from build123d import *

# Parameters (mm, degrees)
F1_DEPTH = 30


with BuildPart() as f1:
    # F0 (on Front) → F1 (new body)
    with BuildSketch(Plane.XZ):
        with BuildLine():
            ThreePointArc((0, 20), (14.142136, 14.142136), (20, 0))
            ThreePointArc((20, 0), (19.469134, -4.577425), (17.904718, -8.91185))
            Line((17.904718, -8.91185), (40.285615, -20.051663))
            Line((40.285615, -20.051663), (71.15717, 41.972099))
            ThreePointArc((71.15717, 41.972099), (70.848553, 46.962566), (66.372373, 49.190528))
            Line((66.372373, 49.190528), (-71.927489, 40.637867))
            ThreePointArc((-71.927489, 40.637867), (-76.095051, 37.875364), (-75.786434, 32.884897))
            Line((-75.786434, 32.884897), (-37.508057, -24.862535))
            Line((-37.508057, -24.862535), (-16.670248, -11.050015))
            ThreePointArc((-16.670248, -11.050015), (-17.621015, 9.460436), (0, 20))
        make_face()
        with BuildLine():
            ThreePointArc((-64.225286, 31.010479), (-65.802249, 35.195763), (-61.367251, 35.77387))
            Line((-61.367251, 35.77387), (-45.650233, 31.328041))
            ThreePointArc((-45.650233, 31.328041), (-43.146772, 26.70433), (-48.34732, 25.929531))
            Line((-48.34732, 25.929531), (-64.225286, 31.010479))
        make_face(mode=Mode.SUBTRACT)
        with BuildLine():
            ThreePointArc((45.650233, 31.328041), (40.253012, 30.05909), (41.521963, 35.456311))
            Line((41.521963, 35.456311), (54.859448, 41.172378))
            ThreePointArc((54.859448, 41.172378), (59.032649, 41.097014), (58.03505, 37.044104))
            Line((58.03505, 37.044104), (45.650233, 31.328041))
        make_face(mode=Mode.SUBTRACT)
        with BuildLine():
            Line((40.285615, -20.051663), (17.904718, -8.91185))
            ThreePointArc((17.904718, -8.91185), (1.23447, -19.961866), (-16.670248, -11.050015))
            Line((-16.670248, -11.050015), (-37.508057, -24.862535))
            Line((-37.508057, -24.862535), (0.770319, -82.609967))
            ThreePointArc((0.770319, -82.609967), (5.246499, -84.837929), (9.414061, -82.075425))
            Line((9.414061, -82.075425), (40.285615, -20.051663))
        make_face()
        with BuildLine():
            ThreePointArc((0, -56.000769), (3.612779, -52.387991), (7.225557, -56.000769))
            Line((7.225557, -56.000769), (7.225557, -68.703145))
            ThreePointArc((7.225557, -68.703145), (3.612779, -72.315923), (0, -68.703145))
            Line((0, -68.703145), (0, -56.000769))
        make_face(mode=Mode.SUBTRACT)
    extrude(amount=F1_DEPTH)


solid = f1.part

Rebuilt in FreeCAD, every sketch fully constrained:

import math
import FreeCAD as App
import Part
import Sketcher

doc = App.newDocument("Part")
body = doc.addObject("PartDesign::Body", "Body")

sketch1 = body.newObject("Sketcher::SketchObject", "Sketch")
sketch1.AttachmentSupport = (doc.getObject("XZ_Plane"), [""])
sketch1.MapMode = "FlatFace"
sketch1.addGeometry([
    Part.LineSegment(App.Vector(-75.8, 32.9, 0), App.Vector(-37.5, -24.9, 0)),
    Part.LineSegment(App.Vector(-37.5, -24.9, 0), App.Vector(0.8, -82.6, 0)),
    Part.ArcOfCircle(Part.Circle(App.Vector(4.9, -79.8, 0), App.Vector(0, 0, 1), 5), math.radians(-146), math.radians(-26)),
    Part.LineSegment(App.Vector(9.4, -82.1, 0), App.Vector(40.3, -20.1, 0)),
    Part.LineSegment(App.Vector(40.3, -20.1, 0), App.Vector(71.2, 42, 0)),
    Part.ArcOfCircle(Part.Circle(App.Vector(66.7, 44.2, 0), App.Vector(0, 0, 1), 5), math.radians(-26), math.radians(94)),
    Part.LineSegment(App.Vector(66.4, 49.2, 0), App.Vector(-71.9, 40.6, 0)),
    Part.ArcOfCircle(Part.Circle(App.Vector(-71.6, 35.6, 0), App.Vector(0, 0, 1), 5), math.radians(94), math.radians(214)),
    Part.LineSegment(App.Vector(0, -68.7, 0), App.Vector(0, -56, 0)),
    Part.ArcOfCircle(Part.Circle(App.Vector(3.6, -56, 0), App.Vector(0, 0, 1), 3.6), math.radians(0), math.radians(180)),
    Part.LineSegment(App.Vector(7.2, -56, 0), App.Vector(7.2, -68.7, 0)),
    Part.ArcOfCircle(Part.Circle(App.Vector(3.6, -68.7, 0), App.Vector(0, 0, 1), 3.6), math.radians(-180), math.radians(0)),
    Part.LineSegment(App.Vector(-48.3, 25.9, 0), App.Vector(-64.2, 31, 0)),
    Part.ArcOfCircle(Part.Circle(App.Vector(-63.4, 33.7, 0), App.Vector(0, 0, 1), 2.9), math.radians(46), math.radians(252)),
    Part.LineSegment(App.Vector(-61.4, 35.8, 0), App.Vector(-45.7, 31.3, 0)),
    Part.ArcOfCircle(Part.Circle(App.Vector(-46, 28.1, 0), App.Vector(0, 0, 1), 3.2), math.radians(-137), math.radians(83)),
    Part.ArcOfCircle(Part.Circle(App.Vector(0, 0, 0), App.Vector(0, 0, 1), 20), math.radians(0), math.radians(90)),
    Part.ArcOfCircle(Part.Circle(App.Vector(0, 0, 0), App.Vector(0, 0, 1), 20), math.radians(-26), math.radians(0)),
    Part.ArcOfCircle(Part.Circle(App.Vector(0, 0, 0), App.Vector(0, 0, 1), 20), math.radians(-146), math.radians(-26)),
    Part.ArcOfCircle(Part.Circle(App.Vector(0, 0, 0), App.Vector(0, 0, 1), 20), math.radians(90), math.radians(214)),
    Part.LineSegment(App.Vector(58, 37, 0), App.Vector(45.7, 31.3, 0)),
    Part.ArcOfCircle(Part.Circle(App.Vector(42.6, 32.4, 0), App.Vector(0, 0, 1), 3.3), math.radians(109), math.radians(341)),
    Part.LineSegment(App.Vector(41.5, 35.5, 0), App.Vector(54.9, 41.2, 0)),
    Part.ArcOfCircle(Part.Circle(App.Vector(56.9, 39.5, 0), App.Vector(0, 0, 1), 2.7), math.radians(-65), math.radians(140)),
], False)
sketch1.addConstraint([
    Sketcher.Constraint("Coincident", 0, 2, 1, 1),
    Sketcher.Constraint("Tangent", 1, 2, 2, 1),
    Sketcher.Constraint("Tangent", 2, 2, 3, 1),
    Sketcher.Constraint("Coincident", 3, 2, 4, 1),
    Sketcher.Constraint("Tangent", 4, 2, 5, 1),
    Sketcher.Constraint("Tangent", 5, 2, 6, 1),
    Sketcher.Constraint("Tangent", 6, 2, 7, 1),
    Sketcher.Constraint("Tangent", 7, 2, 0, 1),
    Sketcher.Constraint("Tangent", 8, 2, 9, 2),
    Sketcher.Constraint("Tangent", 9, 1, 10, 1),
    Sketcher.Constraint("Tangent", 10, 2, 11, 2),
    Sketcher.Constraint("Tangent", 11, 1, 8, 1),
    Sketcher.Constraint("Tangent", 12, 2, 13, 2),
    Sketcher.Constraint("Coincident", 13, 1, 14, 1),
    Sketcher.Constraint("Coincident", 14, 2, 15, 2),
    Sketcher.Constraint("Coincident", 15, 1, 12, 1),
    Sketcher.Constraint("Tangent", 16, 1, 17, 2),
    Sketcher.Constraint("Tangent", 17, 1, 18, 2),
    Sketcher.Constraint("Tangent", 18, 1, 19, 2),
    Sketcher.Constraint("Tangent", 19, 1, 16, 2),
    Sketcher.Constraint("Coincident", 20, 2, 21, 2),
    Sketcher.Constraint("Coincident", 21, 1, 22, 1),
    Sketcher.Constraint("Coincident", 22, 2, 23, 2),
    Sketcher.Constraint("Tangent", 23, 1, 20, 1),
    Sketcher.Constraint("Vertical", 8),
    Sketcher.Constraint("Vertical", 10),
    Sketcher.Constraint("Coincident", 16, 3, -1, 1),
    Sketcher.Constraint("Equal", 2, 5),
    Sketcher.Constraint("Equal", 5, 7),
    Sketcher.Constraint("Equal", 16, 17),
    Sketcher.Constraint("Symmetric", 14, 2, 20, 2, -2),
    Sketcher.Constraint("PointOnObject", 8, 2, -2),
    Sketcher.Constraint("PointOnObject", 16, 1, -1),
    Sketcher.Constraint("PointOnObject", 19, 1, -2),
    Sketcher.Constraint("Parallel", 0, 1),
    Sketcher.Constraint("Parallel", 3, 4),
    Sketcher.Constraint("Equal", 0, 1),
    Sketcher.Constraint("Equal", 1, 3),
    Sketcher.Constraint("Equal", 3, 4),
    Sketcher.Constraint("Radius", 2, 5.000001),
    Sketcher.Constraint("Radius", 16, 19.999999),
    Sketcher.Constraint("Radius", 9, 3.612779),
    Sketcher.Constraint("Radius", 13, 2.85311),
    Sketcher.Constraint("Radius", 15, 3.210188),
    Sketcher.Constraint("Radius", 23, 2.67048),
    Sketcher.Constraint("Radius", 21, 3.260736),
    Sketcher.Constraint("DistanceX", 21, 1, 23, 3, 15.394001),
    Sketcher.Constraint("DistanceY", -1, 1, 7, 3, 35.647401),
    Sketcher.Constraint("DistanceX", -1, 1, 21, 3, 42.5587),
    Sketcher.Constraint("DistanceY", -1, 1, 4, 2, 41.972099),
    Sketcher.Constraint("DistanceX", 22, 2, 23, 1, 3.175602),
    Sketcher.Constraint("Distance", 3, 69.282032),
    Sketcher.Constraint("Distance", 14, 16.333709),
    Sketcher.Constraint("DistanceY", 8, 1, 8, 2, 12.702376),
    Sketcher.Constraint("DistanceX", -1, 1, 2, 3, 4.937881),
    Sketcher.Constraint("DistanceY", 2, 3, -1, 1, 79.847462),
    Sketcher.Constraint("DistanceY", 9, 3, -1, 1, 56.000769),
    Sketcher.Constraint("DistanceY", -1, 1, 13, 3, 33.72785),
    Sketcher.Constraint("DistanceY", -1, 1, 21, 3, 32.364778),
    Sketcher.Constraint("DistanceY", -1, 1, 23, 3, 39.468792),
    Sketcher.Constraint("DistanceY", -1, 1, 12, 2, 31.010479),
    Sketcher.Constraint("DistanceX", 13, 1, -1, 1, 61.367251),
    Sketcher.Constraint("DistanceY", -1, 1, 13, 1, 35.77387),
    Sketcher.Constraint("DistanceX", 15, 1, -1, 1, 48.34732),
    Sketcher.Constraint("DistanceX", -1, 1, 17, 1, 17.904718),
    Sketcher.Constraint("DistanceX", 18, 1, -1, 1, 16.670248),
    Sketcher.Constraint("DistanceY", -1, 1, 21, 1, 35.456311),
])
pad1 = body.newObject("PartDesign::Pad", "Pad")
pad1.Profile = sketch1
pad1.Length = 30

doc.recompute()
